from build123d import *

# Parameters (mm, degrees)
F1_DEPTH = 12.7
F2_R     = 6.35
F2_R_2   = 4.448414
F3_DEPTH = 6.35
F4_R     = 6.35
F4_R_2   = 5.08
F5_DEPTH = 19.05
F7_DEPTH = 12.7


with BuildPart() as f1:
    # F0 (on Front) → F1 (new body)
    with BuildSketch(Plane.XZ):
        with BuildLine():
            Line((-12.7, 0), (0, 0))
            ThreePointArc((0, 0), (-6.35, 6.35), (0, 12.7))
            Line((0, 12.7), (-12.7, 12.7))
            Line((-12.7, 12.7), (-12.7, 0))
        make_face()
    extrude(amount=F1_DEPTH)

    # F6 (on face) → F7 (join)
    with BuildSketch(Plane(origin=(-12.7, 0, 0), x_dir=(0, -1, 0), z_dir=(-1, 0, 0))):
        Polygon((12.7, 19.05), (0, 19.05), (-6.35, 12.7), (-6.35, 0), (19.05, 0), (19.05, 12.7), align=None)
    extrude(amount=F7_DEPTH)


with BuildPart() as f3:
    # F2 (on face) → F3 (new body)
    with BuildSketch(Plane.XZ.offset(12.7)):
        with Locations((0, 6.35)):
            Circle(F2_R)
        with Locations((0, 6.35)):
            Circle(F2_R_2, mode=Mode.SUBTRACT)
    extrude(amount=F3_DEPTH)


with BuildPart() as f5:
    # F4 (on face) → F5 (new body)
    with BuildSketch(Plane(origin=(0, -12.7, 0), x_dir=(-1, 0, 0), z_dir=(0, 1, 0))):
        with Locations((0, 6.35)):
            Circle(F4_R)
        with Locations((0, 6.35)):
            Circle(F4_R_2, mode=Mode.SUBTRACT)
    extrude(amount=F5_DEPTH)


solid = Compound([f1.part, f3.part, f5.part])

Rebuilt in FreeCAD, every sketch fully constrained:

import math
import FreeCAD as App
import Part
import Sketcher
from FreeCAD import Vector
Q = App.Units.Quantity

doc = App.newDocument("Part")
body = doc.addObject("PartDesign::Body", "Body")

# Sketch on XZ plane
sketch1 = body.newObject("Sketcher::SketchObject", "Sketch")
sketch1.AttachmentSupport = (doc.getObject("XZ_Plane"), [""])
sketch1.MapMode = "FlatFace"
sketch1.addGeometry([
    Part.LineSegment(Vector(-12.7, 0, 0), Vector(0, 0, 0)),
    Part.ArcOfCircle(Part.Circle(Vector(0, 6.35, 0), Vector(0, 0, 1), 6.35), math.radians(90), math.radians(270)),
    Part.LineSegment(Vector(0, 12.7, 0), Vector(-12.7, 12.7, 0)),
    Part.LineSegment(Vector(-12.7, 12.7, 0), Vector(-12.7, 0, 0)),
], False)
sketch1.addConstraint([
    Sketcher.Constraint("Tangent", 0, 2, 1, 2),
    Sketcher.Constraint("Tangent", 1, 1, 2, 1),
    Sketcher.Constraint("Coincident", 2, 2, 3, 1),
    Sketcher.Constraint("Coincident", 3, 2, 0, 1),
    Sketcher.Constraint("Horizontal", 0),
    Sketcher.Constraint("Horizontal", 2),
    Sketcher.Constraint("Vertical", 3),
    Sketcher.Constraint("Coincident", 0, 2, -1, 1),
    Sketcher.Constraint("Equal", 2, 3),
    Sketcher.Constraint("Radius", 1, Q("0.25 in")),
])
pad1 = body.newObject("PartDesign::Pad", "Pad")
pad1.Profile = sketch1
pad1.Length = Q("0.5 in")

# Sketch on YZ plane
sketch2 = body.newObject("Sketcher::SketchObject", "Sketch001")
sketch2.AttachmentSupport = (doc.getObject("YZ_Plane"), [""])
sketch2.MapMode = "FlatFace"
sketch2.AttachmentOffset = App.Placement(Vector(0, 0, -0.5 * 25.4), App.Rotation())
sketch2.addGeometry([
    Part.LineSegment(Vector(-12.7, 19.05, 0), Vector(0, 19.05, 0)),  # 0
    Part.LineSegment(Vector(0, 19.05, 0), Vector(6.35, 12.7, 0)),  # 1
    Part.LineSegment(Vector(6.35, 12.7, 0), Vector(6.35, 0, 0)),  # 2
    Part.LineSegment(Vector(6.35, 0, 0), Vector(-19.05, 0, 0)),  # 3
    Part.LineSegment(Vector(-19.05, 0, 0), Vector(-19.05, 12.7, 0)),  # 4
    Part.LineSegment(Vector(-19.05, 12.7, 0), Vector(-12.7, 19.05, 0)),  # 5
], False)
sketch2.addConstraint([
    Sketcher.Constraint("Coincident", 0, 2, 1, 1),
    Sketcher.Constraint("Coincident", 1, 2, 2, 1),
    Sketcher.Constraint("Coincident", 2, 2, 3, 1),
    Sketcher.Constraint("Coincident", 3, 2, 4, 1),
    Sketcher.Constraint("Coincident", 4, 2, 5, 1),
    Sketcher.Constraint("Coincident", 5, 2, 0, 1),
    Sketcher.Constraint("Horizontal", 0),
    Sketcher.Constraint("Vertical", 2),
    Sketcher.Constraint("Horizontal", 3),
    Sketcher.Constraint("Vertical", 4),
    Sketcher.Constraint("PointOnObject", 0, 2, -2),
    Sketcher.Constraint("PointOnObject", 2, 2, -1),
    Sketcher.Constraint("Perpendicular", 1, 5),
    Sketcher.Constraint("Horizontal", 1, 2, 4, 2),
    Sketcher.Constraint("Equal", 0, 2),
    Sketcher.Constraint("Equal", 1, 5),
    Sketcher.Constraint("DistanceX", 3, 2, 3, 1, Q("1 in")),
    Sketcher.Constraint("DistanceX", 0, 1, 0, 2, Q("0.5 in")),
])
pad2 = body.newObject("PartDesign::Pad", "Pad001")
pad2.Profile = sketch2
pad2.Length = Q("0.5 in")
pad2.Reversed = True
body2 = doc.addObject("PartDesign::Body", "Body001")

# Sketch on XZ plane
sketch3 = body2.newObject("Sketcher::SketchObject", "Sketch002")
sketch3.AttachmentSupport = (doc.getObject("XZ_Plane001"), [""])
sketch3.MapMode = "FlatFace"
sketch3.AttachmentOffset = App.Placement(Vector(0, 0, 0.5 * 25.4), App.Rotation())
sketch3.addGeometry([
    Part.Circle(Vector(0, 6.35, 0), Vector(0, 0, 1), 6.35),
    Part.Circle(Vector(0, 6.35, 0), Vector(0, 0, 1), 4.448414),
], False)
sketch3.addConstraint([
    Sketcher.Constraint("Coincident", 1, 3, 0, 3),
    Sketcher.Constraint("PointOnObject", 0, 3, -2),
    Sketcher.Constraint("Diameter", 0, Q("0.5 in")),
    Sketcher.Constraint("DistanceY", -1, 1, 0, 3, Q("0.25 in")),
    Sketcher.Constraint("Diameter", 1, 8.896828),
])
pad3 = body2.newObject("PartDesign::Pad", "Pad002")
pad3.Profile = sketch3
pad3.Length = Q("0.25 in")
body3 = doc.addObject("PartDesign::Body", "Body002")

# Sketch on XZ plane
sketch4 = body3.newObject("Sketcher::SketchObject", "Sketch003")
sketch4.AttachmentSupport = (doc.getObject("XZ_Plane002"), [""])
sketch4.MapMode = "FlatFace"
sketch4.AttachmentOffset = App.Placement(Vector(0, 0, 0.5 * 25.4), App.Rotation())
sketch4.addGeometry([
    Part.Circle(Vector(0, 6.35, 0), Vector(0, 0, 1), 6.35),
    Part.Circle(Vector(0, 6.35, 0), Vector(0, 0, 1), 5.08),
], False)
sketch4.addConstraint([
    Sketcher.Constraint("Coincident", 1, 3, 0, 3),
    Sketcher.Constraint("PointOnObject", 0, 3, -2),
    Sketcher.Constraint("Diameter", 0, Q("0.5 in")),
    Sketcher.Constraint("Diameter", 1, Q("0.4 in")),
    Sketcher.Constraint("DistanceY", -1, 1, 0, 3, Q("0.25 in")),
])
pad4 = body3.newObject("PartDesign::Pad", "Pad003")
pad4.Profile = sketch4
pad4.Length = Q("0.75 in")
pad4.Reversed = True

doc.recompute()
